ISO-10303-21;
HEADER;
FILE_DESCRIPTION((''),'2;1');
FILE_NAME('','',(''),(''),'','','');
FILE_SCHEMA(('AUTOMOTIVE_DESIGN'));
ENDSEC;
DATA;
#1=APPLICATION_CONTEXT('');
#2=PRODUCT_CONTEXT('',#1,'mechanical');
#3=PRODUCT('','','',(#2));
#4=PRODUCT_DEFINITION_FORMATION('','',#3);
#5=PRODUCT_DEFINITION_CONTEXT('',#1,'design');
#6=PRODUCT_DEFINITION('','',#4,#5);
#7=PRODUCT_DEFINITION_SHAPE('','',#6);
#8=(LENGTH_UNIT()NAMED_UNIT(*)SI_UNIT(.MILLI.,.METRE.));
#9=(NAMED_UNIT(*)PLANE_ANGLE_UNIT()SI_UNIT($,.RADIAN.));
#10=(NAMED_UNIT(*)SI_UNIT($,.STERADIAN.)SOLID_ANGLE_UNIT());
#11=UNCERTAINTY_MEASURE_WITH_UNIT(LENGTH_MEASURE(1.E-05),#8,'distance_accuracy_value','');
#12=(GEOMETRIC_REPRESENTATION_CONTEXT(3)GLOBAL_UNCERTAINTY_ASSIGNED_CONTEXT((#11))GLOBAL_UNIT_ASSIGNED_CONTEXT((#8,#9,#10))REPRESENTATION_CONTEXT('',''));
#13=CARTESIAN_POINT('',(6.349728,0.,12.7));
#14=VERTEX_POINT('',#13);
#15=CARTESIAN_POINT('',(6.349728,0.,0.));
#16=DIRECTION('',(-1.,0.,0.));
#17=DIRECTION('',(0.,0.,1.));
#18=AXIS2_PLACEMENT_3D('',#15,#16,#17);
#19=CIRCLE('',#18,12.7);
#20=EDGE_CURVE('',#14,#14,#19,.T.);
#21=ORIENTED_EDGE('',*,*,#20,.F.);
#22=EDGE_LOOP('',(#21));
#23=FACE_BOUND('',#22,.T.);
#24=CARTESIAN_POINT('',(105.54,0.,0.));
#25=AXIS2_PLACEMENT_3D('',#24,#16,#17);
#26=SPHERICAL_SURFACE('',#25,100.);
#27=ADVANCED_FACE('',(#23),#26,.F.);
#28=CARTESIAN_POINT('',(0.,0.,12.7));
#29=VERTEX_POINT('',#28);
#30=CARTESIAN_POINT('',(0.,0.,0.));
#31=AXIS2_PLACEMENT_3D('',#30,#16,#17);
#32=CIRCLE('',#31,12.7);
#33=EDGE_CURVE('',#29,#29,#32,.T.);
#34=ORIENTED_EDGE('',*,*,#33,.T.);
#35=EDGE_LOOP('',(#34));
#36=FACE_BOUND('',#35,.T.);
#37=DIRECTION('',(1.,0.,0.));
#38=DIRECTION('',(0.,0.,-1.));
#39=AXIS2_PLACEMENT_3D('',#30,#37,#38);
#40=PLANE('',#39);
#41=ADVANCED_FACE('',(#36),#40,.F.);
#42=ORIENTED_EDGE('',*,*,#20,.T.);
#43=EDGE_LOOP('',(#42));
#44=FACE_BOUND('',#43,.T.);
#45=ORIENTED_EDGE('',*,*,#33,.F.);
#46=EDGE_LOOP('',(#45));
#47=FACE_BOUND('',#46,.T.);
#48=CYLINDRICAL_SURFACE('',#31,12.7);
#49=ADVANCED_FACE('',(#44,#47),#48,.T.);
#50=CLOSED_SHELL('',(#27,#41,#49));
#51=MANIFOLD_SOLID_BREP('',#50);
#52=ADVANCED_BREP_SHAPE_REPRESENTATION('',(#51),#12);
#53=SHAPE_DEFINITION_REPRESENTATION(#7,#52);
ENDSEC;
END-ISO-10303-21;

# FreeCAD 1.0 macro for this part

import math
import FreeCAD as App
import Part
import Sketcher

doc = App.newDocument("Part")
body = doc.addObject("PartDesign::Body", "Body")

sketch1 = body.newObject("Sketcher::SketchObject", "Sketch")
sketch1.AttachmentSupport = (doc.getObject("XZ_Plane"), [""])
sketch1.MapMode = "FlatFace"
sketch1.addGeometry([
    Part.LineSegment(App.Vector(0, 0, 0), App.Vector(6, 0, 0)),
    Part.ArcOfCircle(Part.Circle(App.Vector(106, 0, 0), App.Vector(0, 0, 1), 100), math.radians(180), math.radians(187.3)),
    Part.LineSegment(App.Vector(6, -13, 0), App.Vector(0, -13, 0)),
    Part.LineSegment(App.Vector(0, -13, 0), App.Vector(0, 0, 0)),
], False)
sketch1.addConstraint([
    Sketcher.Constraint("Coincident", 0, 2, 1, 1),
    Sketcher.Constraint("Coincident", 1, 2, 2, 1),
    Sketcher.Constraint("Coincident", 2, 2, 3, 1),
    Sketcher.Constraint("Coincident", 3, 2, 0, 1),
    Sketcher.Constraint("Horizontal", 0),
    Sketcher.Constraint("Horizontal", 2),
    Sketcher.Constraint("Vertical", 3),
    Sketcher.Constraint("Coincident", 3, 2, -1, 1),
    Sketcher.Constraint("PointOnObject", 1, 3, -1),
    Sketcher.Constraint("Radius", 1, 100.0),
    Sketcher.Constraint("DistanceY", 3, 1, 3, 2, 12.7),
    Sketcher.Constraint("DistanceX", 0, 1, 0, 2, 5.54),
])
revolution = body.newObject("PartDesign::Revolution", "Revolution")
revolution.Profile = sketch1
revolution.ReferenceAxis = (sketch1, ["H_Axis"])
revolution.Angle = 360

doc.recompute()
